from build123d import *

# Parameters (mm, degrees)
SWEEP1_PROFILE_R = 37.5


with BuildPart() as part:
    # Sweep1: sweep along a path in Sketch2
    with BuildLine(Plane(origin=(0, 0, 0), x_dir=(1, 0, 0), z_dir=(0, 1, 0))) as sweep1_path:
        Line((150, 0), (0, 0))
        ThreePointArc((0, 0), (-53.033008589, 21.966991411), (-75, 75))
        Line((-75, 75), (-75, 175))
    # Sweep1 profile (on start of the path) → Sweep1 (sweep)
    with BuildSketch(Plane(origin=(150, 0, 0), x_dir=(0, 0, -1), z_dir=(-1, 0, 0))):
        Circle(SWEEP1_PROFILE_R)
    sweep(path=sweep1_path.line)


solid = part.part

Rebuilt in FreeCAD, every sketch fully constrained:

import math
import FreeCAD as App
import Part
import Sketcher
from FreeCAD import Vector

doc = App.newDocument("Part")
body = doc.addObject("PartDesign::Body", "Body")

sketch1 = body.newObject("Sketcher::SketchObject", "Sketch")
sketch1.AttachmentSupport = (doc.getObject("YZ_Plane"), [""])
sketch1.MapMode = "FlatFace"
sketch1.AttachmentOffset = App.Placement(Vector(0, 0, 150), App.Rotation())
sketch1.addGeometry(Part.Circle(Vector(0, 0, 0), Vector(0, 0, 1), 38), False)
sketch1.addConstraint([
    Sketcher.Constraint("Coincident", 0, 3, -1, 1),
    Sketcher.Constraint("Diameter", 0, 75.0),
])

sketch2 = body.newObject("Sketcher::SketchObject", "Sketch001")
sketch2.AttachmentSupport = (doc.getObject("XZ_Plane"), [""])
sketch2.MapMode = "FlatFace"
sketch2.addGeometry([
    Part.LineSegment(Vector(150, 0, 0), Vector(0, 0, 0)),
    Part.ArcOfCircle(Part.Circle(Vector(0, -75, 0), Vector(0, 0, 1), 75), math.radians(90), math.radians(180)),
    Part.LineSegment(Vector(-75, -75, 0), Vector(-75, -175, 0)),
], False)
sketch2.addConstraint([
    Sketcher.Constraint("Tangent", 0, 2, 1, 1),
    Sketcher.Constraint("Tangent", 1, 2, 2, 1),
    Sketcher.Constraint("Horizontal", 0),
    Sketcher.Constraint("Vertical", 2),
    Sketcher.Constraint("Coincident", 0, 2, -1, 1),
    Sketcher.Constraint("Radius", 1, 75.0),
    Sketcher.Constraint("DistanceX", 0, 2, 0, 1, 150.0),
    Sketcher.Constraint("DistanceY", 2, 2, 2, 1, 100.0),
])
doc.recompute()

additivepipe = body.newObject("PartDesign::AdditivePipe", "AdditivePipe")
additivepipe.Profile = sketch1
additivepipe.Spine = (sketch2, ["Edge1", "Edge2", "Edge3"])

doc.recompute()
